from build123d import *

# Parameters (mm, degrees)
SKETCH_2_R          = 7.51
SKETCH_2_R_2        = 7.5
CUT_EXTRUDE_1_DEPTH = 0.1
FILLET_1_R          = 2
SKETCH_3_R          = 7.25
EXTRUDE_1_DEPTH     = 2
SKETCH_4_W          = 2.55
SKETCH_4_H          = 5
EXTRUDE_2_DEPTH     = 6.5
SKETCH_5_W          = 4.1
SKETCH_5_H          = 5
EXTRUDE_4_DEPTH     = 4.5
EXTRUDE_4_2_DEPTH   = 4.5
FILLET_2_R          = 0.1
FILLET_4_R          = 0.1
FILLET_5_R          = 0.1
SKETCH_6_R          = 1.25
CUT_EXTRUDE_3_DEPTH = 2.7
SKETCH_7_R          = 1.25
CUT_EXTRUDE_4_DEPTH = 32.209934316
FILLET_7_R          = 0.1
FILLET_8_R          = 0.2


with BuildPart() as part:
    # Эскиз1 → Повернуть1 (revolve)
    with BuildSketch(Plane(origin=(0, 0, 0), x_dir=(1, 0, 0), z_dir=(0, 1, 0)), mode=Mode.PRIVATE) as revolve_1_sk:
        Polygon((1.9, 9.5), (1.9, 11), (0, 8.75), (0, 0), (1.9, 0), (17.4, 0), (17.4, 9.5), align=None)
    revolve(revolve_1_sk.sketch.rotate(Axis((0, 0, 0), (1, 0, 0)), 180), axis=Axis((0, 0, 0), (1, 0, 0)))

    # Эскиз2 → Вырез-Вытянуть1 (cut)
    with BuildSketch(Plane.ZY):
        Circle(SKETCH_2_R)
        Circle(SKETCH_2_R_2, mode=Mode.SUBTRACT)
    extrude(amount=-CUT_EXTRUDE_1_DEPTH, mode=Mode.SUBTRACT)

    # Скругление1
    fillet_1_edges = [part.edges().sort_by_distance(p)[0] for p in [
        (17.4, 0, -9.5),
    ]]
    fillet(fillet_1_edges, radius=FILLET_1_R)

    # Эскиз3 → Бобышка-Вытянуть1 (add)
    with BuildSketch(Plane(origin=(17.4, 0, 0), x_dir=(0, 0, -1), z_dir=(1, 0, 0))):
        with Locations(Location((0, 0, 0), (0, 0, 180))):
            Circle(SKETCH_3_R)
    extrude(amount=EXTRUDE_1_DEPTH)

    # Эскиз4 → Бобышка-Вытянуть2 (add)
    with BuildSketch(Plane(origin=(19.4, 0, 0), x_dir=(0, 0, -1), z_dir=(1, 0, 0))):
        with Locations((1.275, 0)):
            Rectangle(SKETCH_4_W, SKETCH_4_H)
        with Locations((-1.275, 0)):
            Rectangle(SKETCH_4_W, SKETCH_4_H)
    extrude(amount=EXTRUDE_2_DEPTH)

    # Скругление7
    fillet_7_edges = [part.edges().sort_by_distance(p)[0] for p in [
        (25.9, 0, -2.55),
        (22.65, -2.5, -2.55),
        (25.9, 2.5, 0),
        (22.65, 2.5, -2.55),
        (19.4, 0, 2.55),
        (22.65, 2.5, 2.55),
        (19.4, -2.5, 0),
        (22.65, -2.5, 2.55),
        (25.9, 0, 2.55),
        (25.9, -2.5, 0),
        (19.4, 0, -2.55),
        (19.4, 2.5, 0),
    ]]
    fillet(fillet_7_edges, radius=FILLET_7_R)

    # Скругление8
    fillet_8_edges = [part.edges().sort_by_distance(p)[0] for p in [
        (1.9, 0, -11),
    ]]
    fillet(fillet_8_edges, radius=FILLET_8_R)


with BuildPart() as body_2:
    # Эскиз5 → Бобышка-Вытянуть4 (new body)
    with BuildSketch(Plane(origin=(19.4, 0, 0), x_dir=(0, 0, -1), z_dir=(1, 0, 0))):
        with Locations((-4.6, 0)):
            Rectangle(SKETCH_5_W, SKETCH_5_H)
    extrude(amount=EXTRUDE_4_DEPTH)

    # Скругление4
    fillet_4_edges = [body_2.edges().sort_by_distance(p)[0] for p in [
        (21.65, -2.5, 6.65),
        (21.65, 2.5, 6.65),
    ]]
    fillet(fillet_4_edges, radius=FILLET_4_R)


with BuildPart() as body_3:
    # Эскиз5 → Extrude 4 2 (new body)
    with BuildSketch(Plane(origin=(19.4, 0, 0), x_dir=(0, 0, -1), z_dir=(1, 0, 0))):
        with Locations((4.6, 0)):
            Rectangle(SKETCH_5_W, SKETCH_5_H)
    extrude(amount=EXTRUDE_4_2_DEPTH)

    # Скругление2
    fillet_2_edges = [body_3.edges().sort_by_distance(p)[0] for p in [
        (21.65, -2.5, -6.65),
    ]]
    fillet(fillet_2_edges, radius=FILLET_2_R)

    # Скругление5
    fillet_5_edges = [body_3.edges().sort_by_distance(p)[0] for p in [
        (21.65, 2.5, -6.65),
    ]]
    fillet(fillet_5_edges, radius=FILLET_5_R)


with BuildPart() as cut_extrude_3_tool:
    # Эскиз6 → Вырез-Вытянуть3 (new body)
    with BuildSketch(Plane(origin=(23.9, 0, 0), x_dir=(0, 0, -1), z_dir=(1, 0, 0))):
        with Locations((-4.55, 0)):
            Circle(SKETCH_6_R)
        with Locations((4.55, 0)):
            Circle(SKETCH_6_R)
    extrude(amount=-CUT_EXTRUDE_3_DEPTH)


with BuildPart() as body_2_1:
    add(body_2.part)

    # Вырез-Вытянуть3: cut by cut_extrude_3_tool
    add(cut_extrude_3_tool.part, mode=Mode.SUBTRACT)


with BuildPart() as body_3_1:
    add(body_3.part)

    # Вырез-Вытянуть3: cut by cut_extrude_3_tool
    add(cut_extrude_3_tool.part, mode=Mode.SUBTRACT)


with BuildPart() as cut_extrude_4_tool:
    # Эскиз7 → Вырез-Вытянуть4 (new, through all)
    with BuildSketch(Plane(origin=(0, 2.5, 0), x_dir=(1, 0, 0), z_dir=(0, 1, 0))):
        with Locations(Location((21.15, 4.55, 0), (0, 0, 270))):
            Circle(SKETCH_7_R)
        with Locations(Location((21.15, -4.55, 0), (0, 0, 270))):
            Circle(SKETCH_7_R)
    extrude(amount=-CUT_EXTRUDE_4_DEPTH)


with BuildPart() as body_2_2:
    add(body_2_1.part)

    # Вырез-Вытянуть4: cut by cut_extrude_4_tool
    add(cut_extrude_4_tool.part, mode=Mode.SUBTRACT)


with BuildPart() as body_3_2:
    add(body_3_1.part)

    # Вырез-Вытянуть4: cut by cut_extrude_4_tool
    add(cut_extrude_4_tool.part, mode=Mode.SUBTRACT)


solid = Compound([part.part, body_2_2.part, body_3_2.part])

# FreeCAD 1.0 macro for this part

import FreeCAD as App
import Part
import Sketcher

V = App.Vector
Q = App.Units.Quantity


def edges_at(feature, points):
    """Names of the edges that pass closest to the given points."""
    edges = feature.Shape.Edges
    near = lambda p: min(range(len(edges)), key=lambda i: edges[i].distToShape(Part.Vertex(*p))[0])
    return sorted({f"Edge{near(p) + 1}" for p in points})

doc = App.newDocument("Part")
body = doc.addObject("PartDesign::Body", "Body")

sketch1 = body.newObject("Sketcher::SketchObject", "Sketch")
sketch1.AttachmentSupport = (doc.getObject("XZ_Plane"), [""])
sketch1.MapMode = "FlatFace"
sketch1.addGeometry([
    Part.LineSegment(V(1.9, -9.5, 0), V(1.9, -11, 0)),
    Part.LineSegment(V(1.9, -11, 0), V(0, -8.8, 0)),
    Part.LineSegment(V(0, -8.8, 0), V(0, 0, 0)),
    Part.LineSegment(V(0, 0, 0), V(17.4, 0, 0)),
    Part.LineSegment(V(17.4, 0, 0), V(17.4, -9.5, 0)),
    Part.LineSegment(V(17.4, -9.5, 0), V(1.9, -9.5, 0)),
], False)
sketch1.addConstraint([
    Sketcher.Constraint("Coincident", 0, 2, 1, 1),
    Sketcher.Constraint("Coincident", 1, 2, 2, 1),
    Sketcher.Constraint("Coincident", 2, 2, 3, 1),
    Sketcher.Constraint("Coincident", 3, 2, 4, 1),
    Sketcher.Constraint("Coincident", 4, 2, 5, 1),
    Sketcher.Constraint("Coincident", 5, 2, 0, 1),
    Sketcher.Constraint("Vertical", 0),
    Sketcher.Constraint("Vertical", 2),
    Sketcher.Constraint("Horizontal", 3),
    Sketcher.Constraint("Vertical", 4),
    Sketcher.Constraint("Horizontal", 5),
    Sketcher.Constraint("Coincident", 2, 2, -1, 1),
    Sketcher.Constraint("DistanceX", 3, 1, 3, 2, Q("17.4 mm")),
    Sketcher.Constraint("DistanceX", 5, 2, 5, 1, Q("15.5 mm")),
    Sketcher.Constraint("DistanceY", 0, 2, 0, 1, Q("1.5 mm")),
    Sketcher.Constraint("DistanceY", 4, 2, 4, 1, Q("9.5 mm")),
    Sketcher.Constraint("DistanceY", 2, 1, 2, 2, Q("8.75 mm")),
])
revolution = body.newObject("PartDesign::Revolution", "Revolution")
revolution.Profile = sketch1
revolution.ReferenceAxis = (sketch1, ["H_Axis"])
revolution.Angle = 360

sketch2 = body.newObject("Sketcher::SketchObject", "Sketch001")
sketch2.AttachmentSupport = (doc.getObject("YZ_Plane"), [""])
sketch2.MapMode = "FlatFace"
sketch2.addGeometry([
    Part.Circle(V(0, 0, 0), V(0, 0, 1), 8),
    Part.Circle(V(0, 0, 0), V(0, 0, 1), 8),
], False)
sketch2.addConstraint([
    Sketcher.Constraint("Coincident", 0, 3, -1, 1),
    Sketcher.Constraint("Coincident", 1, 3, -1, 1),
    Sketcher.Constraint("Diameter", 1, Q("15 mm")),
    Sketcher.Constraint("Diameter", 0, Q("15.02 mm")),
])
pocket1 = body.newObject("PartDesign::Pocket", "Pocket")
pocket1.Profile = sketch2
pocket1.Length = 0.1
pocket1.Reversed = True
doc.recompute()

fillet = body.newObject("PartDesign::Fillet", "Fillet")
fillet.Base = (pocket1, edges_at(pocket1, [(17.4, 0, -9.5)]))
fillet.Radius = 2

sketch3 = body.newObject("Sketcher::SketchObject", "Sketch002")
sketch3.AttachmentSupport = (doc.getObject("YZ_Plane"), [""])
sketch3.MapMode = "FlatFace"
sketch3.AttachmentOffset = App.Placement(V(0, 0, 17.4), App.Rotation())
sketch3.addGeometry(Part.Circle(V(0, 0, 0), V(0, 0, 1), 7), False)
sketch3.addConstraint([
    Sketcher.Constraint("Coincident", 0, 3, -1, 1),
    Sketcher.Constraint("Diameter", 0, Q("14.5 mm")),
])
pad1 = body.newObject("PartDesign::Pad", "Pad")
pad1.Profile = sketch3
pad1.Length = 2

sketch4 = body.newObject("Sketcher::SketchObject", "Sketch003")
sketch4.AttachmentSupport = (doc.getObject("YZ_Plane"), [""])
sketch4.MapMode = "FlatFace"
sketch4.AttachmentOffset = App.Placement(V(0, 0, 19.4), App.Rotation())
sketch4.addGeometry([
    Part.LineSegment(V(-2, -3, 0), V(2, -3, 0)),
    Part.LineSegment(V(2, -3, 0), V(2, 3, 0)),
    Part.LineSegment(V(2, 3, 0), V(-2, 3, 0)),
    Part.LineSegment(V(-2, 3, 0), V(-2, -3, 0)),
], False)
sketch4.addConstraint([
    Sketcher.Constraint("Coincident", 0, 2, 1, 1),
    Sketcher.Constraint("Coincident", 1, 2, 2, 1),
    Sketcher.Constraint("Coincident", 2, 2, 3, 1),
    Sketcher.Constraint("Coincident", 3, 2, 0, 1),
    Sketcher.Constraint("Horizontal", 0),
    Sketcher.Constraint("Vertical", 1),
    Sketcher.Constraint("Horizontal", 2),
    Sketcher.Constraint("Vertical", 3),
    Sketcher.Constraint("Symmetric", 0, 2, 2, 2, -1, 1),
    Sketcher.Constraint("DistanceX", 0, 1, 0, 2, Q("5 mm")),
    Sketcher.Constraint("DistanceY", 1, 1, 1, 2, Q("5.1 mm")),
])
pad2 = body.newObject("PartDesign::Pad", "Pad001")
pad2.Profile = sketch4
pad2.Length = 6.5
doc.recompute()

fillet2 = body.newObject("PartDesign::Fillet", "Fillet001")
fillet2.Base = (pad2, edges_at(pad2, [
    (25.9, 0, -2.55),
    (22.65, -2.5, -2.55),
    (25.9, 2.5, 0),
    (22.65, 2.5, -2.55),
    (19.4, 0, 2.55),
    (22.65, 2.5, 2.55),
    (19.4, -2.5, 0),
    (22.65, -2.5, 2.55),
    (25.9, 0, 2.55),
    (25.9, -2.5, 0),
    (19.4, 0, -2.55),
    (19.4, 2.5, 0),
]))
fillet2.Radius = 0.1
doc.recompute()

fillet3 = body.newObject("PartDesign::Fillet", "Fillet002")
fillet3.Base = (fillet2, edges_at(fillet2, [(1.9, 0, -11)]))
fillet3.Radius = 0.2
body2 = doc.addObject("PartDesign::Body", "Body001")

sketch5 = body2.newObject("Sketcher::SketchObject", "Sketch004")
sketch5.AttachmentSupport = (doc.getObject("YZ_Plane001"), [""])
sketch5.MapMode = "FlatFace"
sketch5.AttachmentOffset = App.Placement(V(0, 0, 19.4), App.Rotation())
sketch5.addGeometry([
    Part.LineSegment(V(2.5, 6.7, 0), V(-2.5, 6.7, 0)),
    Part.LineSegment(V(-2.5, 6.7, 0), V(-2.5, 2.5, 0)),
    Part.LineSegment(V(-2.5, 2.5, 0), V(2.5, 2.5, 0)),
    Part.LineSegment(V(2.5, 2.5, 0), V(2.5, 6.7, 0)),
], False)
sketch5.addConstraint([
    Sketcher.Constraint("Coincident", 0, 2, 1, 1),
    Sketcher.Constraint("Coincident", 1, 2, 2, 1),
    Sketcher.Constraint("Coincident", 2, 2, 3, 1),
    Sketcher.Constraint("Coincident", 3, 2, 0, 1),
    Sketcher.Constraint("Horizontal", 0),
    Sketcher.Constraint("Vertical", 1),
    Sketcher.Constraint("Horizontal", 2),
    Sketcher.Constraint("Vertical", 3),
    Sketcher.Constraint("DistanceX", 0, 2, 0, 1, Q("5 mm")),
    Sketcher.Constraint("DistanceY", 1, 2, 1, 1, Q("4.1 mm")),
    Sketcher.Constraint("DistanceX", 0, 2, -1, 1, Q("2.5 mm")),
    Sketcher.Constraint("DistanceY", -1, 1, 0, 2, Q("6.65 mm")),
])
pad3 = body2.newObject("PartDesign::Pad", "Pad002")
pad3.Profile = sketch5
pad3.Length = 4.5
doc.recompute()

fillet4 = body2.newObject("PartDesign::Fillet", "Fillet003")
fillet4.Base = (pad3, edges_at(pad3, [(21.65, -2.5, 6.65), (21.65, 2.5, 6.65)]))
fillet4.Radius = 0.1
body3 = doc.addObject("PartDesign::Body", "Body002")

sketch6 = body3.newObject("Sketcher::SketchObject", "Sketch005")
sketch6.AttachmentSupport = (doc.getObject("YZ_Plane002"), [""])
sketch6.MapMode = "FlatFace"
sketch6.AttachmentOffset = App.Placement(V(0, 0, 19.4), App.Rotation())
sketch6.addGeometry([
    Part.LineSegment(V(2.5, -2.5, 0), V(-2.5, -2.5, 0)),
    Part.LineSegment(V(-2.5, -2.5, 0), V(-2.5, -6.7, 0)),
    Part.LineSegment(V(-2.5, -6.7, 0), V(2.5, -6.7, 0)),
    Part.LineSegment(V(2.5, -6.7, 0), V(2.5, -2.5, 0)),
], False)
sketch6.addConstraint([
    Sketcher.Constraint("Coincident", 0, 2, 1, 1),
    Sketcher.Constraint("Coincident", 1, 2, 2, 1),
    Sketcher.Constraint("Coincident", 2, 2, 3, 1),
    Sketcher.Constraint("Coincident", 3, 2, 0, 1),
    Sketcher.Constraint("Horizontal", 0),
    Sketcher.Constraint("Vertical", 1),
    Sketcher.Constraint("Horizontal", 2),
    Sketcher.Constraint("Vertical", 3),
    Sketcher.Constraint("DistanceX", 0, 2, 0, 1, Q("5 mm")),
    Sketcher.Constraint("DistanceY", 1, 2, 1, 1, Q("4.1 mm")),
    Sketcher.Constraint("DistanceX", 0, 2, -1, 1, Q("2.5 mm")),
    Sketcher.Constraint("DistanceY", 0, 2, -1, 1, Q("2.55 mm")),
])
pad4 = body3.newObject("PartDesign::Pad", "Pad003")
pad4.Profile = sketch6
pad4.Length = 4.5
doc.recompute()

fillet5 = body3.newObject("PartDesign::Fillet", "Fillet004")
fillet5.Base = (pad4, edges_at(pad4, [(21.65, -2.5, -6.65)]))
fillet5.Radius = 0.1
doc.recompute()

fillet6 = body3.newObject("PartDesign::Fillet", "Fillet005")
fillet6.Base = (fillet5, edges_at(fillet5, [(21.65, 2.5, -6.65)]))
fillet6.Radius = 0.1
body4 = doc.addObject("PartDesign::Body", "Body003")
body4.AllowCompound = True

sketch7 = body4.newObject("Sketcher::SketchObject", "Sketch006")
sketch7.AttachmentSupport = (doc.getObject("YZ_Plane003"), [""])
sketch7.MapMode = "FlatFace"
sketch7.AttachmentOffset = App.Placement(V(0, 0, 23.9), App.Rotation())
sketch7.addGeometry([
    Part.Circle(V(0, 4.5, 0), V(0, 0, 1), 1.2),
    Part.Circle(V(0, -4.5, 0), V(0, 0, 1), 1.2),
], False)
sketch7.addConstraint([
    Sketcher.Constraint("Equal", 0, 1),
    Sketcher.Constraint("Symmetric", 0, 3, 1, 3, -1, 1),
    Sketcher.Constraint("PointOnObject", 0, 3, -2),
    Sketcher.Constraint("Diameter", 0, Q("2.5 mm")),
    Sketcher.Constraint("DistanceY", 1, 3, 0, 3, Q("9.1 mm")),
])
pad5 = body4.newObject("PartDesign::Pad", "Pad004")
pad5.Profile = sketch7
pad5.Length = 2.7
pad5.Reversed = True
doc.recompute()

body5 = doc.addObject("PartDesign::Body", "Body004")
body5.BaseFeature = body4
boolean = body2.newObject("PartDesign::Boolean", "Boolean")
boolean.Type = "Cut"
boolean.addObjects([body5])
doc.recompute()

boolean2 = body3.newObject("PartDesign::Boolean", "Boolean001")
boolean2.Type = "Cut"
boolean2.addObjects([body4])
body6 = doc.addObject("PartDesign::Body", "Body005")
body6.AllowCompound = True

sketch8 = body6.newObject("Sketcher::SketchObject", "Sketch007")
sketch8.AttachmentSupport = (doc.getObject("XZ_Plane005"), [""])
sketch8.MapMode = "FlatFace"
sketch8.AttachmentOffset = App.Placement(V(0, 0, -2.5), App.Rotation())
sketch8.addGeometry([
    Part.Circle(V(21.1, -4.5, 0), V(0, 0, 1), 1.2),
    Part.Circle(V(21.1, 4.5, 0), V(0, 0, 1), 1.2),
], False)
sketch8.addConstraint([
    Sketcher.Constraint("Equal", 0, 1),
    Sketcher.Constraint("Symmetric", 0, 3, 1, 3, -1),
    Sketcher.Constraint("Diameter", 0, Q("2.5 mm")),
    Sketcher.Constraint("DistanceY", 0, 3, 1, 3, Q("9.1 mm")),
    Sketcher.Constraint("DistanceX", -1, 1, 0, 3, Q("21.15 mm")),
])
pad6 = body6.newObject("PartDesign::Pad", "Pad005")
pad6.Profile = sketch8
pad6.Length = 32.209934
doc.recompute()

body7 = doc.addObject("PartDesign::Body", "Body006")
body7.BaseFeature = body6
boolean3 = body2.newObject("PartDesign::Boolean", "Boolean002")
boolean3.Type = "Cut"
boolean3.addObjects([body7])
doc.recompute()

boolean4 = body3.newObject("PartDesign::Boolean", "Boolean003")
boolean4.Type = "Cut"
boolean4.addObjects([body6])

doc.recompute()
